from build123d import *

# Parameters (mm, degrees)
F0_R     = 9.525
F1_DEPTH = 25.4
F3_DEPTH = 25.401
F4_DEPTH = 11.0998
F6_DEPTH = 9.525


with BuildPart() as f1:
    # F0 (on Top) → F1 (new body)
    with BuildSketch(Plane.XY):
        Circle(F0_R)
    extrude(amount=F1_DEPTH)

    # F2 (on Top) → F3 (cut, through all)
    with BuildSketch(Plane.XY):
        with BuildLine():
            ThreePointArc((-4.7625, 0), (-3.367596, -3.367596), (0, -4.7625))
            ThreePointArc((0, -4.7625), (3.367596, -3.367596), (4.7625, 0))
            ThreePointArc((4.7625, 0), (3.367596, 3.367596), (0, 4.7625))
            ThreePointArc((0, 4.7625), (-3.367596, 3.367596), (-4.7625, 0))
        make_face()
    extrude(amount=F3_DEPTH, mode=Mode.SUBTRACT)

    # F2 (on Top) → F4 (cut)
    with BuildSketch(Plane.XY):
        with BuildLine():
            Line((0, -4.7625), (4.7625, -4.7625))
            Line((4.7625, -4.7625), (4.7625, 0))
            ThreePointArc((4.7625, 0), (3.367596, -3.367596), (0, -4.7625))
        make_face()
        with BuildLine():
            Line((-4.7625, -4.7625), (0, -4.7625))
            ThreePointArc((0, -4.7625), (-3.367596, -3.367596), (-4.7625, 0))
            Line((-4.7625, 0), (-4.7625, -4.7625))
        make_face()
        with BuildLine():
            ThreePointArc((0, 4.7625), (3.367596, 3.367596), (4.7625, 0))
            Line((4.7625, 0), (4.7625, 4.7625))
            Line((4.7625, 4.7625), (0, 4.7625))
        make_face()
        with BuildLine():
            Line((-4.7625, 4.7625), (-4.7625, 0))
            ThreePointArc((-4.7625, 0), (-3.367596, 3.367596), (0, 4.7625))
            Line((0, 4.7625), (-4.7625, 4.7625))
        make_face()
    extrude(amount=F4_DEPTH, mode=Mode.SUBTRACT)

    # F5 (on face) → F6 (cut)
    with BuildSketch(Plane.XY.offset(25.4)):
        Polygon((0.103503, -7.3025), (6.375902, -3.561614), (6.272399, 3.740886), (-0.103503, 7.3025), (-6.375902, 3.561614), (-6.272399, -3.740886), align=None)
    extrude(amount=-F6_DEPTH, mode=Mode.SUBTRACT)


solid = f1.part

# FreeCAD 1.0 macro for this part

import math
import FreeCAD as App
import Part
import Sketcher

V = App.Vector
Q = App.Units.Quantity


def add_polygon(sketch, points):
    """Adds a closed chain of lines whose ends are joined by coincident constraints."""
    first, n = sketch.GeometryCount, len(points)
    for a, b in zip(points, points[1:] + points[:1]):
        sketch.addGeometry(Part.LineSegment(App.Vector(*a, 0), App.Vector(*b, 0)), False)
    for i in range(n):
        sketch.addConstraint(Sketcher.Constraint("Coincident", first + i, 2, first + (i + 1) % n, 1))

doc = App.newDocument("Part")
body = doc.addObject("PartDesign::Body", "Body")

# Sketch on XY plane
sketch1 = doc.addObject("Sketcher::SketchObject", "Sketch")
body.addObject(sketch1)
sketch1.AttachmentSupport = (doc.XY_Plane, [""])
sketch1.MapMode = "FlatFace"
sketch1.addGeometry(Part.Circle(V(0, 0, 0), V(0, 0, 1), 10), False)
sketch1.addConstraint(Sketcher.Constraint("Coincident", 0, 3, -1, 1))
sketch1.addConstraint(Sketcher.Constraint("Diameter", 0, Q("0.75 in")))
pad1 = doc.addObject("PartDesign::Pad", "Pad")
body.addObject(pad1)
pad1.Profile = sketch1
pad1.Length = Q("1 in")

# Sketch on XY plane
sketch2 = doc.addObject("Sketcher::SketchObject", "Sketch001")
body.addObject(sketch2)
sketch2.AttachmentSupport = (doc.XY_Plane, [""])
sketch2.MapMode = "FlatFace"
sketch2.addGeometry(Part.ArcOfCircle(Part.Circle(V(0, 0, 0), V(0, 0, 1), 4.8), math.radians(-180), math.radians(-90)), False)
sketch2.addGeometry(Part.ArcOfCircle(Part.Circle(V(0, 0, 0), V(0, 0, 1), 4.8), math.radians(-90), math.radians(0)), False)
sketch2.addGeometry(Part.ArcOfCircle(Part.Circle(V(0, 0, 0), V(0, 0, 1), 4.8), math.radians(0), math.radians(90)), False)
sketch2.addGeometry(Part.ArcOfCircle(Part.Circle(V(0, 0, 0), V(0, 0, 1), 4.8), math.radians(90), math.radians(180)), False)
sketch2.addConstraint(Sketcher.Constraint("Tangent", 0, 2, 1, 1))
sketch2.addConstraint(Sketcher.Constraint("Tangent", 1, 2, 2, 1))
sketch2.addConstraint(Sketcher.Constraint("Tangent", 2, 2, 3, 1))
sketch2.addConstraint(Sketcher.Constraint("Tangent", 3, 2, 0, 1))
sketch2.addConstraint(Sketcher.Constraint("Coincident", 0, 3, -1, 1))
sketch2.addConstraint(Sketcher.Constraint("Equal", 0, 1))
sketch2.addConstraint(Sketcher.Constraint("PointOnObject", 0, 2, -2))
sketch2.addConstraint(Sketcher.Constraint("PointOnObject", 1, 2, -1))
sketch2.addConstraint(Sketcher.Constraint("PointOnObject", 2, 2, -2))
sketch2.addConstraint(Sketcher.Constraint("PointOnObject", 3, 2, -1))
sketch2.addConstraint(Sketcher.Constraint("Radius", 0, Q("0.1875 in")))
pocket1 = doc.addObject("PartDesign::Pocket", "Pocket")
body.addObject(pocket1)
pocket1.Profile = sketch2
pocket1.Type = "ThroughAll"
pocket1.Reversed = True

# Sketch on XY plane
sketch3 = doc.addObject("Sketcher::SketchObject", "Sketch002")
body.addObject(sketch3)
sketch3.AttachmentSupport = (doc.XY_Plane, [""])
sketch3.MapMode = "FlatFace"
sketch3.addGeometry(Part.LineSegment(V(0, -4.8, 0), V(4.8, -4.8, 0)), False)
sketch3.addGeometry(Part.LineSegment(V(4.8, -4.8, 0), V(4.8, 0, 0)), False)
sketch3.addGeometry(Part.ArcOfCircle(Part.Circle(V(0, 0, 0), V(0, 0, 1), 4.8), math.radians(-90), math.radians(0)), False)
sketch3.addGeometry(Part.LineSegment(V(-4.8, -4.8, 0), V(0, -4.8, 0)), False)
sketch3.addGeometry(Part.ArcOfCircle(Part.Circle(V(0, 0, 0), V(0, 0, 1), 4.8), math.radians(-180), math.radians(-90)), False)
sketch3.addGeometry(Part.LineSegment(V(-4.8, 0, 0), V(-4.8, -4.8, 0)), False)
sketch3.addGeometry(Part.ArcOfCircle(Part.Circle(V(0, 0, 0), V(0, 0, 1), 4.8), math.radians(0), math.radians(90)), False)
sketch3.addGeometry(Part.LineSegment(V(4.8, 0, 0), V(4.8, 4.8, 0)), False)
sketch3.addGeometry(Part.LineSegment(V(4.8, 4.8, 0), V(0, 4.8, 0)), False)
sketch3.addGeometry(Part.LineSegment(V(-4.8, 4.8, 0), V(-4.8, 0, 0)), False)
sketch3.addGeometry(Part.ArcOfCircle(Part.Circle(V(0, 0, 0), V(0, 0, 1), 4.8), math.radians(90), math.radians(180)), False)
sketch3.addGeometry(Part.LineSegment(V(0, 4.8, 0), V(-4.8, 4.8, 0)), False)
sketch3.addConstraint(Sketcher.Constraint("Coincident", 0, 2, 1, 1))
sketch3.addConstraint(Sketcher.Constraint("Tangent", 1, 2, 2, 2))
sketch3.addConstraint(Sketcher.Constraint("Tangent", 2, 1, 0, 1))
sketch3.addConstraint(Sketcher.Constraint("Tangent", 3, 2, 4, 2))
sketch3.addConstraint(Sketcher.Constraint("Tangent", 4, 1, 5, 1))
sketch3.addConstraint(Sketcher.Constraint("Coincident", 5, 2, 3, 1))
sketch3.addConstraint(Sketcher.Constraint("Tangent", 6, 1, 7, 1))
sketch3.addConstraint(Sketcher.Constraint("Coincident", 7, 2, 8, 1))
sketch3.addConstraint(Sketcher.Constraint("Tangent", 8, 2, 6, 2))
sketch3.addConstraint(Sketcher.Constraint("Tangent", 9, 2, 10, 2))
sketch3.addConstraint(Sketcher.Constraint("Tangent", 10, 1, 11, 1))
sketch3.addConstraint(Sketcher.Constraint("Coincident", 11, 2, 9, 1))
sketch3.addConstraint(Sketcher.Constraint("Horizontal", 0))
sketch3.addConstraint(Sketcher.Constraint("Vertical", 1))
sketch3.addConstraint(Sketcher.Constraint("Horizontal", 3))
sketch3.addConstraint(Sketcher.Constraint("Vertical", 5))
sketch3.addConstraint(Sketcher.Constraint("Vertical", 7))
sketch3.addConstraint(Sketcher.Constraint("Horizontal", 8))
sketch3.addConstraint(Sketcher.Constraint("Vertical", 9))
sketch3.addConstraint(Sketcher.Constraint("Horizontal", 11))
sketch3.addConstraint(Sketcher.Constraint("Coincident", 2, 3, -1, 1))
sketch3.addConstraint(Sketcher.Constraint("Coincident", 4, 3, -1, 1))
sketch3.addConstraint(Sketcher.Constraint("Coincident", 6, 3, -1, 1))
sketch3.addConstraint(Sketcher.Constraint("Coincident", 10, 3, -1, 1))
sketch3.addConstraint(Sketcher.Constraint("Equal", 2, 4))
sketch3.addConstraint(Sketcher.Constraint("Equal", 4, 6))
sketch3.addConstraint(Sketcher.Constraint("Equal", 6, 10))
sketch3.addConstraint(Sketcher.Constraint("Radius", 2, Q("0.1875 in")))
pocket2 = doc.addObject("PartDesign::Pocket", "Pocket001")
body.addObject(pocket2)
pocket2.Profile = sketch3
pocket2.Length = Q("0.437 in")
pocket2.Reversed = True

# Sketch on XY plane
sketch4 = doc.addObject("Sketcher::SketchObject", "Sketch003")
body.addObject(sketch4)
sketch4.AttachmentSupport = (doc.XY_Plane, [""])
sketch4.MapMode = "FlatFace"
sketch4.AttachmentOffset = App.Placement(V(0, 0, 1 * 25.4), App.Rotation())
add_polygon(sketch4, [(0, -7), (6, -4), (6, 4), (0, 7), (-6, 4), (-6, -4)])  # lines 0-5
sketch4.addConstraint(Sketcher.Constraint("Symmetric", 0, 2, 3, 2, -1, 1))
sketch4.addConstraint(Sketcher.Constraint("Symmetric", 1, 2, 4, 2, -1, 1))
sketch4.addConstraint(Sketcher.Constraint("Symmetric", 2, 2, 5, 2, -1, 1))
sketch4.addConstraint(Sketcher.Constraint("Equal", 0, 1))
sketch4.addConstraint(Sketcher.Constraint("Equal", 1, 2))
sketch4.addConstraint(Sketcher.Constraint("DistanceY", 5, 2, 2, 2, Q("0.575 in")))
sketch4.addConstraint(Sketcher.Constraint("DistanceY", 0, 2, 1, 2, Q("0.2875 in")))
sketch4.addConstraint(Sketcher.Constraint("DistanceX", -1, 1, 1, 2, Q("6.272399 mm")))
sketch4.addConstraint(Sketcher.Constraint("DistanceX", 3, 2, 2, 2, Q("6.272399 mm")))
pocket3 = doc.addObject("PartDesign::Pocket", "Pocket002")
body.addObject(pocket3)
pocket3.Profile = sketch4
pocket3.Length = Q("0.375 in")

doc.recompute()
